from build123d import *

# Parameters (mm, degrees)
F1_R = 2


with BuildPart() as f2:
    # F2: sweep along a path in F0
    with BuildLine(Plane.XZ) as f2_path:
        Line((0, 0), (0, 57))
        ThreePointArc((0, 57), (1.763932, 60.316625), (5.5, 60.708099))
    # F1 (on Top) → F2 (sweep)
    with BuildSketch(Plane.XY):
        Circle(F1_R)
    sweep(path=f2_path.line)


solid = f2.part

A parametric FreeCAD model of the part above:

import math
import FreeCAD as App
import Part
import Sketcher
from FreeCAD import Vector
Q = App.Units.Quantity

doc = App.newDocument("Part")
body = doc.addObject("PartDesign::Body", "Body")

# Sketch on XY plane
sketch1 = body.newObject("Sketcher::SketchObject", "Sketch")
sketch1.AttachmentSupport = (doc.getObject("XY_Plane"), [""])
sketch1.MapMode = "FlatFace"
sketch1.addGeometry(Part.Circle(Vector(0, 0, 0), Vector(0, 0, 1), 2), False)
sketch1.addConstraint(Sketcher.Constraint("Coincident", 0, 3, -1, 1))
sketch1.addConstraint(Sketcher.Constraint("Diameter", 0, Q("4 mm")))

# Sketch on XZ plane
sketch2 = body.newObject("Sketcher::SketchObject", "Sketch001")
sketch2.AttachmentSupport = (doc.getObject("XZ_Plane"), [""])
sketch2.MapMode = "FlatFace"
sketch2.addGeometry(Part.LineSegment(Vector(0, 0, 0), Vector(0, 57, 0)), False)
sketch2.addGeometry(Part.ArcOfCircle(Part.Circle(Vector(4, 57, 0), Vector(0, 0, 1), 4), math.radians(68), math.radians(180)), False)
sketch2.addConstraint(Sketcher.Constraint("Tangent", 0, 2, 1, 2))
sketch2.addConstraint(Sketcher.Constraint("Vertical", 0))
sketch2.addConstraint(Sketcher.Constraint("Coincident", 0, 1, -1, 1))
sketch2.addConstraint(Sketcher.Constraint("Radius", 1, Q("4 mm")))
sketch2.addConstraint(Sketcher.Constraint("DistanceY", 0, 1, 0, 2, Q("57 mm")))
sketch2.addConstraint(Sketcher.Constraint("DistanceX", -1, 1, 1, 1, Q("5.5 mm")))
doc.recompute()

additivepipe = body.newObject("PartDesign::AdditivePipe", "AdditivePipe")
additivepipe.Profile = sketch1
additivepipe.Spine = (sketch2, ["Edge1", "Edge2"])

doc.recompute()
